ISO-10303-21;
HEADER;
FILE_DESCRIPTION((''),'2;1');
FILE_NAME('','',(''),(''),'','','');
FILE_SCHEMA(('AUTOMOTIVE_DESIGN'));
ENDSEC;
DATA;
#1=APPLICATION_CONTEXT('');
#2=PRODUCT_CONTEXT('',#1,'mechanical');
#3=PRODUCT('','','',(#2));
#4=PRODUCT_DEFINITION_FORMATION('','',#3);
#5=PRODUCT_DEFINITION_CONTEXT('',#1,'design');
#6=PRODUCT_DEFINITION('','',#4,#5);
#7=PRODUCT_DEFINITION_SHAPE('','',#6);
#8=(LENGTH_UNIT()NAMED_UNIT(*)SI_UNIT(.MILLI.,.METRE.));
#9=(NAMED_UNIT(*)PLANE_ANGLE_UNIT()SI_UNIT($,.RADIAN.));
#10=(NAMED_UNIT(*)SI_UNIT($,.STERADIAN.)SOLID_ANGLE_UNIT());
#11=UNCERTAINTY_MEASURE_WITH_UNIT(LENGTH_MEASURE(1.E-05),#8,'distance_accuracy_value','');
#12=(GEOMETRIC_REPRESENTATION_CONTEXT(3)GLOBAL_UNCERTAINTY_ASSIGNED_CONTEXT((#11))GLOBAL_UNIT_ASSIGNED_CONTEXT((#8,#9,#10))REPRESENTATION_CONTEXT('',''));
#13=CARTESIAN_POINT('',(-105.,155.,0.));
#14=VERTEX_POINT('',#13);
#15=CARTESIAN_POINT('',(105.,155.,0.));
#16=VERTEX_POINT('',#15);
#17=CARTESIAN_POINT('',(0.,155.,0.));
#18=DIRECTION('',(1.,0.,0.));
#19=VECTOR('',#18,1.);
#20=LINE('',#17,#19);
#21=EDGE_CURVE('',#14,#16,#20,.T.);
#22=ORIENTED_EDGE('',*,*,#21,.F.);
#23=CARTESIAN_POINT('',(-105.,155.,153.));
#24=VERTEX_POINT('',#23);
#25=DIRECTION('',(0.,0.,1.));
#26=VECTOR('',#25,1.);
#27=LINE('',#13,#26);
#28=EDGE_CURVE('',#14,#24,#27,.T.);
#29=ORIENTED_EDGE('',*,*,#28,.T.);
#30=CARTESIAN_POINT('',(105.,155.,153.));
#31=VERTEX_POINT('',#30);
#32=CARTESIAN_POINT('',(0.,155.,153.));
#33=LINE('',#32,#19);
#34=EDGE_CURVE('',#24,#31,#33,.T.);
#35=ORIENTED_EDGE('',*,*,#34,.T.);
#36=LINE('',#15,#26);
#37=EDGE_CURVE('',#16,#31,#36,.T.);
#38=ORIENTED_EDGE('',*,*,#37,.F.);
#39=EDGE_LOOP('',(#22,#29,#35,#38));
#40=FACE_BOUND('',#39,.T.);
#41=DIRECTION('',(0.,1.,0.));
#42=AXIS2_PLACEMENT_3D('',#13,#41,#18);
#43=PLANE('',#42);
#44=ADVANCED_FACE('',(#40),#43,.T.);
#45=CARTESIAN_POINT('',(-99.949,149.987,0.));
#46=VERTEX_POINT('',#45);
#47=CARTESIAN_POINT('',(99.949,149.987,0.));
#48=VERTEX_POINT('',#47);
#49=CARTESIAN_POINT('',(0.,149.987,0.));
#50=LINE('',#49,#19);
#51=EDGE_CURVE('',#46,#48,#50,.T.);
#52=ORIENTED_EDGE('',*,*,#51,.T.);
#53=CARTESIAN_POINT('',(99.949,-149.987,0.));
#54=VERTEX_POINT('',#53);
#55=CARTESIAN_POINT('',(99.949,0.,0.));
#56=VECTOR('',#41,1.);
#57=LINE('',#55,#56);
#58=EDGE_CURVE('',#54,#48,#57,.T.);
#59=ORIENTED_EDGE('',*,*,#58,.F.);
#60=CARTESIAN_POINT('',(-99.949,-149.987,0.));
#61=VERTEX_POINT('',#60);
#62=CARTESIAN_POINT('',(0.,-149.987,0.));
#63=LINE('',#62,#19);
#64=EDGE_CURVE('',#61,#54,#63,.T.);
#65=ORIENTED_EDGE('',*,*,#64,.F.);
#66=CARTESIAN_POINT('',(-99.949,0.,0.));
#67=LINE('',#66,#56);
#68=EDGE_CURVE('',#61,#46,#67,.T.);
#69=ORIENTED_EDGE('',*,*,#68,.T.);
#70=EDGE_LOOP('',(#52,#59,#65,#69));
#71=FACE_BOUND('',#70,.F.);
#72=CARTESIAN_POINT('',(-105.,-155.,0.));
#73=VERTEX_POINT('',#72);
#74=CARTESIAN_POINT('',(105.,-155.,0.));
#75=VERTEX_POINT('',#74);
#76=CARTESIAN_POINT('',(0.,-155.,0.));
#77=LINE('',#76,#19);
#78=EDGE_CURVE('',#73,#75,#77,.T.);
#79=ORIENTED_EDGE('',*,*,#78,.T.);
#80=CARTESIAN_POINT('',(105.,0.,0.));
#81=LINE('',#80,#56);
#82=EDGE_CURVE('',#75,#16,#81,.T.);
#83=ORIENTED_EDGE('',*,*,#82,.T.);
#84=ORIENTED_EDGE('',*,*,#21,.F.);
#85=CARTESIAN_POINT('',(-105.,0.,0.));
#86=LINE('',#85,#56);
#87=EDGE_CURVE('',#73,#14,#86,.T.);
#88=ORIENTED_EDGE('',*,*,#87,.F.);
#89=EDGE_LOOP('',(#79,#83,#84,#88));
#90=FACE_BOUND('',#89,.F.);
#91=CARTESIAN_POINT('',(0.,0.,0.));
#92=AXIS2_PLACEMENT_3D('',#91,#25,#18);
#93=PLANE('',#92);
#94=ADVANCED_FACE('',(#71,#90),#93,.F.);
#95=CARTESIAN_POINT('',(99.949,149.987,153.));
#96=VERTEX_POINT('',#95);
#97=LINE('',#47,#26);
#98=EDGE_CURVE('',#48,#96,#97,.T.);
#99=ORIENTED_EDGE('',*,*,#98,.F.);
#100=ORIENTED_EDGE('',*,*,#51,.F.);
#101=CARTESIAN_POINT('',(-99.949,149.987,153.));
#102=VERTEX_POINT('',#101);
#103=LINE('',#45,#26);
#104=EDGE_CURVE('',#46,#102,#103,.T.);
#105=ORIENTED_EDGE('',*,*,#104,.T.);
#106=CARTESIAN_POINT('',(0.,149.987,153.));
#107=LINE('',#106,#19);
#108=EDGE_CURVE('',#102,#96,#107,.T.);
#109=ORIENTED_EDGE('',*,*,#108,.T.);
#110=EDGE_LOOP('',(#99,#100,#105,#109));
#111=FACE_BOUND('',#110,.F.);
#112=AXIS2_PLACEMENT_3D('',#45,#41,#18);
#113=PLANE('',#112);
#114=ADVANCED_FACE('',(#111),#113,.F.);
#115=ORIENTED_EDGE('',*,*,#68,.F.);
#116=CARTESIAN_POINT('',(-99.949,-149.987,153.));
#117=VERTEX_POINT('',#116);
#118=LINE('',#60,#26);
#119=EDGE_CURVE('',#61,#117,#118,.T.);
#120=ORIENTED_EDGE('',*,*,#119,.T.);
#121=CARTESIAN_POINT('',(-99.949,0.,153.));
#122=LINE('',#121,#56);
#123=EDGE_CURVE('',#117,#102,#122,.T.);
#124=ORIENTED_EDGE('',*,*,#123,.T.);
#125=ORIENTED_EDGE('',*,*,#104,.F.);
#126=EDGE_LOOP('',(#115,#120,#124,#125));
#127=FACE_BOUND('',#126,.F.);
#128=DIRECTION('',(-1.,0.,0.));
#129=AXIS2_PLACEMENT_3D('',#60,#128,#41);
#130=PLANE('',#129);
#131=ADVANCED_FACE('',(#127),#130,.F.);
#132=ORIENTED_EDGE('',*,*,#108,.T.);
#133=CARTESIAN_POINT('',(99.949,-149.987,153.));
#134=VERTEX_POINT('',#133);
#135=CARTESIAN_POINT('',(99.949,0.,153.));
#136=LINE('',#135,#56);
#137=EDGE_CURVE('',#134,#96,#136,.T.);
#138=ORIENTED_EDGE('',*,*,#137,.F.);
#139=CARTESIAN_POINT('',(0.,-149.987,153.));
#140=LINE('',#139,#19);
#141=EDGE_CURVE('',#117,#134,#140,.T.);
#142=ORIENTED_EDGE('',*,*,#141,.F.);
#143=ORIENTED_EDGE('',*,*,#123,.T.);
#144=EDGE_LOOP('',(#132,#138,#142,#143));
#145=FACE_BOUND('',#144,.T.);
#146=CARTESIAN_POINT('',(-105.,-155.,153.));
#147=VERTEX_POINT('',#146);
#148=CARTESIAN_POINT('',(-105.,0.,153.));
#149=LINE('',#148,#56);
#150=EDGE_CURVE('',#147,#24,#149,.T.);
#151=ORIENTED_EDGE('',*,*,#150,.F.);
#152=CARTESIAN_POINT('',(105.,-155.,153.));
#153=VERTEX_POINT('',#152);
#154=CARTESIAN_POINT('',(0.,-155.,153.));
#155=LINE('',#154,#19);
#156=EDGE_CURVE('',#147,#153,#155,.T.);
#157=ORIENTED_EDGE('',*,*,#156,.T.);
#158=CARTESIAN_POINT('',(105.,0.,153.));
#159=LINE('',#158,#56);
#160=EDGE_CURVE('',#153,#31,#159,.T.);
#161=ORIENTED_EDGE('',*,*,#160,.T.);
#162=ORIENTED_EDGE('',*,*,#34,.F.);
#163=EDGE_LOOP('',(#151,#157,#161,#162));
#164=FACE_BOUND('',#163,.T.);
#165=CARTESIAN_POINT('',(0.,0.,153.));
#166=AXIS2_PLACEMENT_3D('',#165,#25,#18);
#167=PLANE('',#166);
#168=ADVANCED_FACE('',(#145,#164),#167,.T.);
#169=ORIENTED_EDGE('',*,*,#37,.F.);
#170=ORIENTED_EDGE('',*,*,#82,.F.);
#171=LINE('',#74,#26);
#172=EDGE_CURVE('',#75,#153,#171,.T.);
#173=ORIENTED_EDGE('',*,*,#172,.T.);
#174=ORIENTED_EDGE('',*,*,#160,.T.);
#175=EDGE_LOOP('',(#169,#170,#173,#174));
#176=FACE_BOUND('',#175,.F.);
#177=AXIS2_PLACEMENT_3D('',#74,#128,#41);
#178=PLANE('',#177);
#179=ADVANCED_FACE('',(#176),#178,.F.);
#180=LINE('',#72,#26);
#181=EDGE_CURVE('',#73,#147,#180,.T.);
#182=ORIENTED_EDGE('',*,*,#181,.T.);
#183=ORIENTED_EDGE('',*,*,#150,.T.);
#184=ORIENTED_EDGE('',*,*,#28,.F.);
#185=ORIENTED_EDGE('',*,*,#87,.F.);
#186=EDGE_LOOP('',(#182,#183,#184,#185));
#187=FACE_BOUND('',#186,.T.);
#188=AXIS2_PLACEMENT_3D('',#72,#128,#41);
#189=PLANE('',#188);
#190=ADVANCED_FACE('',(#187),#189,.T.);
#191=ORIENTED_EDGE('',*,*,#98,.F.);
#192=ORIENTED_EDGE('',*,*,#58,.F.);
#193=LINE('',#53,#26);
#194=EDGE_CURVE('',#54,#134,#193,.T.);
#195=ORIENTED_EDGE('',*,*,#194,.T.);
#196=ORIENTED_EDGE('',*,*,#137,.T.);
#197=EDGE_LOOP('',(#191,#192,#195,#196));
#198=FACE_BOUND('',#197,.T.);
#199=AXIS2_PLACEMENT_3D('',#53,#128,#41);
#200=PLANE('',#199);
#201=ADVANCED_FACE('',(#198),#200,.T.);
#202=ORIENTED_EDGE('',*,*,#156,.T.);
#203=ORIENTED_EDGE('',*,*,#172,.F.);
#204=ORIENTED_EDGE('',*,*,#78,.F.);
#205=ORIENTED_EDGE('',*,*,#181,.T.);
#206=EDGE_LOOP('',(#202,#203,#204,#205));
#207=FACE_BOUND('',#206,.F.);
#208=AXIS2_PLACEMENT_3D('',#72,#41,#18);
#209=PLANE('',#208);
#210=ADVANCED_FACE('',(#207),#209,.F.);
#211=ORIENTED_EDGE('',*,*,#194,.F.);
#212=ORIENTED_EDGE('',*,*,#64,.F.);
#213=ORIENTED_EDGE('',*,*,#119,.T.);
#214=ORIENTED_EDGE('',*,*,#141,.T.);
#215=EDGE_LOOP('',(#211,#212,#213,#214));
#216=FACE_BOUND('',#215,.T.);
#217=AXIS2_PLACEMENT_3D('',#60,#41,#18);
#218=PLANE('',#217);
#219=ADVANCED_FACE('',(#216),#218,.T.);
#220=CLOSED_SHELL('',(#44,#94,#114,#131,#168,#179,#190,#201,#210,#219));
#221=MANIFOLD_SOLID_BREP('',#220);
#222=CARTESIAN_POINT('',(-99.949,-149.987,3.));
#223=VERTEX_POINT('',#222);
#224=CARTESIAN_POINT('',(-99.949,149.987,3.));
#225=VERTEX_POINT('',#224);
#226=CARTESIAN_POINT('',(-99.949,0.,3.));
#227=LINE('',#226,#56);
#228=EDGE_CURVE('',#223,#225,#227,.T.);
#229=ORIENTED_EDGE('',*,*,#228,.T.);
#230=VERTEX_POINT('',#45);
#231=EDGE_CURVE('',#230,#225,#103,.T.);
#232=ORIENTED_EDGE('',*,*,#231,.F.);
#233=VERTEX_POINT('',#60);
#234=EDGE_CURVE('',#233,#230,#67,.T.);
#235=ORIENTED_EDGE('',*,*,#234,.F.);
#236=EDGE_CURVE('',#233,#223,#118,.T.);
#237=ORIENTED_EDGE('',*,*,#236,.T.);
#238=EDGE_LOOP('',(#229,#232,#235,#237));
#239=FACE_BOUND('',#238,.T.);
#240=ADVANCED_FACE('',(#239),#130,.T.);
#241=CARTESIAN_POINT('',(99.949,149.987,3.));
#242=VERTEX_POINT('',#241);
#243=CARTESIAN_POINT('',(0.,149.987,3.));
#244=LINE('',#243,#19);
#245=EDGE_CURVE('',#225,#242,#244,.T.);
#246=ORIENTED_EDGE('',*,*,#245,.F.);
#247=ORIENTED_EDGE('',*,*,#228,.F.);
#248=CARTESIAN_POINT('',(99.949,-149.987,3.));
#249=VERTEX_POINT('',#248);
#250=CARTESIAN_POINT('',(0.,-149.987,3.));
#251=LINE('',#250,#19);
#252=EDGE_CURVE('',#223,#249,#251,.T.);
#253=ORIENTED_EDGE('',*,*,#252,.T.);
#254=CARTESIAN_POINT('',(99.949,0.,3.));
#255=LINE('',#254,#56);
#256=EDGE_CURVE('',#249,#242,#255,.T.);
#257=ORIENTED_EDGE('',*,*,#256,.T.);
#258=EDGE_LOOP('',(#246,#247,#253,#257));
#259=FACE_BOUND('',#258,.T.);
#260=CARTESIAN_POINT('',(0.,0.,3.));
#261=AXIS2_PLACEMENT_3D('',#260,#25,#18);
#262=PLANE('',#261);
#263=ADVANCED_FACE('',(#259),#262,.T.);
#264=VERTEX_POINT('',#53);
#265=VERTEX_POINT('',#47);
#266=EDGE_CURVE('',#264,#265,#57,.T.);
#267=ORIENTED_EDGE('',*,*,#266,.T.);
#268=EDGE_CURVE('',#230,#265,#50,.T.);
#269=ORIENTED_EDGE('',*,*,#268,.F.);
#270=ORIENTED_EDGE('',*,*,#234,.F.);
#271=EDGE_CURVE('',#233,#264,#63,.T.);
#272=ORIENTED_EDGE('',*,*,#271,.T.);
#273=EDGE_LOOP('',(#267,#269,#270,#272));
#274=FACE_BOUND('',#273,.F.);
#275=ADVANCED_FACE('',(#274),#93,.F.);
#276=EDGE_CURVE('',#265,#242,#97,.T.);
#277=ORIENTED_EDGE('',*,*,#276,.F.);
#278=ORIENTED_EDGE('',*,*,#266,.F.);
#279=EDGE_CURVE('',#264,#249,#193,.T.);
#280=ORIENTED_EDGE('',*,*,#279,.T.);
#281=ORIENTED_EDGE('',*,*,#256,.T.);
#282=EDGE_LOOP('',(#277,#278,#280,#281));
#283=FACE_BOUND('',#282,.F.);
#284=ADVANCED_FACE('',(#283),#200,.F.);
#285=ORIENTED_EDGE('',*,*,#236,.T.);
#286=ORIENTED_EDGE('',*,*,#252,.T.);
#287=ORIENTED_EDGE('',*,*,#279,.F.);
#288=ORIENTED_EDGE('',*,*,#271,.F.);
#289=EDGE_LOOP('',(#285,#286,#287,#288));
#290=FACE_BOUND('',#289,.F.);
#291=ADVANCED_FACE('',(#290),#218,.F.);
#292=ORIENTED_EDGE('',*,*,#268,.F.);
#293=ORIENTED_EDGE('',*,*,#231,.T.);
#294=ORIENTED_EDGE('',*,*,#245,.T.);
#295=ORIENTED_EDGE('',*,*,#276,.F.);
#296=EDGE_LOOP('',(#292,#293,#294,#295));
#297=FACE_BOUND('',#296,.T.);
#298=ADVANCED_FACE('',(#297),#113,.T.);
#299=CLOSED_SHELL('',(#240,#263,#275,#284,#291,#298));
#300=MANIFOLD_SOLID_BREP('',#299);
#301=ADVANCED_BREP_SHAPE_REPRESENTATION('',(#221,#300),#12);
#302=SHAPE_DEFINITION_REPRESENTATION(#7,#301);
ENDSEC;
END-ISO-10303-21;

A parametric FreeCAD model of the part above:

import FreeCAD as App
import Part
import Sketcher
from FreeCAD import Vector

doc = App.newDocument("Part")
body = doc.addObject("PartDesign::Body", "Body")

# Sketch on XY plane
sketch1 = body.newObject("Sketcher::SketchObject", "Sketch")
sketch1.AttachmentSupport = (doc.getObject("XY_Plane"), [""])
sketch1.MapMode = "FlatFace"
sketch1.addGeometry([
    Part.LineSegment(Vector(-105, 155, 0), Vector(-105, -155, 0)),  # 0
    Part.LineSegment(Vector(-105, -155, 0), Vector(105, -155, 0)),  # 1
    Part.LineSegment(Vector(105, -155, 0), Vector(105, 155, 0)),  # 2
    Part.LineSegment(Vector(105, 155, 0), Vector(-105, 155, 0)),  # 3
    Part.LineSegment(Vector(100, -150, 0), Vector(-100, -150, 0)),  # 4
    Part.LineSegment(Vector(-100, -150, 0), Vector(-100, 150, 0)),  # 5
    Part.LineSegment(Vector(-100, 150, 0), Vector(100, 150, 0)),  # 6
    Part.LineSegment(Vector(100, 150, 0), Vector(100, -150, 0)),  # 7
], False)
sketch1.addConstraint([
    Sketcher.Constraint("Coincident", 0, 2, 1, 1),
    Sketcher.Constraint("Coincident", 1, 2, 2, 1),
    Sketcher.Constraint("Coincident", 2, 2, 3, 1),
    Sketcher.Constraint("Coincident", 3, 2, 0, 1),
    Sketcher.Constraint("Coincident", 4, 2, 5, 1),
    Sketcher.Constraint("Coincident", 5, 2, 6, 1),
    Sketcher.Constraint("Coincident", 6, 2, 7, 1),
    Sketcher.Constraint("Coincident", 7, 2, 4, 1),
    Sketcher.Constraint("Vertical", 0),
    Sketcher.Constraint("Horizontal", 1),
    Sketcher.Constraint("Vertical", 2),
    Sketcher.Constraint("Horizontal", 3),
    Sketcher.Constraint("Horizontal", 4),
    Sketcher.Constraint("Vertical", 5),
    Sketcher.Constraint("Horizontal", 6),
    Sketcher.Constraint("Vertical", 7),
    Sketcher.Constraint("Symmetric", 0, 2, 2, 2, -1, 1),
    Sketcher.Constraint("Symmetric", 4, 2, 6, 2, -1, 1),
    Sketcher.Constraint("DistanceX", 1, 1, 1, 2, 210.0),
    Sketcher.Constraint("DistanceY", 0, 2, 0, 1, 310.0),
    Sketcher.Constraint("DistanceX", 4, 2, 4, 1, 199.898),
    Sketcher.Constraint("DistanceY", 5, 1, 5, 2, 299.974),
])
pad1 = body.newObject("PartDesign::Pad", "Pad")
pad1.Profile = sketch1
pad1.Length = 153
body2 = doc.addObject("PartDesign::Body", "Body001")

# Sketch on XY plane
sketch2 = body2.newObject("Sketcher::SketchObject", "Sketch001")
sketch2.AttachmentSupport = (doc.getObject("XY_Plane001"), [""])
sketch2.MapMode = "FlatFace"
sketch2.addGeometry([
    Part.LineSegment(Vector(-100, 150, 0), Vector(-100, -150, 0)),
    Part.LineSegment(Vector(-100, -150, 0), Vector(100, -150, 0)),
    Part.LineSegment(Vector(100, -150, 0), Vector(100, 150, 0)),
    Part.LineSegment(Vector(100, 150, 0), Vector(-100, 150, 0)),
], False)
sketch2.addConstraint([
    Sketcher.Constraint("Coincident", 0, 2, 1, 1),
    Sketcher.Constraint("Coincident", 1, 2, 2, 1),
    Sketcher.Constraint("Coincident", 2, 2, 3, 1),
    Sketcher.Constraint("Coincident", 3, 2, 0, 1),
    Sketcher.Constraint("Vertical", 0),
    Sketcher.Constraint("Horizontal", 1),
    Sketcher.Constraint("Vertical", 2),
    Sketcher.Constraint("Horizontal", 3),
    Sketcher.Constraint("Symmetric", 0, 2, 2, 2, -1, 1),
    Sketcher.Constraint("DistanceX", 1, 1, 1, 2, 199.898),
    Sketcher.Constraint("DistanceY", 0, 2, 0, 1, 299.974),
])
pad2 = body2.newObject("PartDesign::Pad", "Pad001")
pad2.Profile = sketch2
pad2.Length = 3

doc.recompute()
